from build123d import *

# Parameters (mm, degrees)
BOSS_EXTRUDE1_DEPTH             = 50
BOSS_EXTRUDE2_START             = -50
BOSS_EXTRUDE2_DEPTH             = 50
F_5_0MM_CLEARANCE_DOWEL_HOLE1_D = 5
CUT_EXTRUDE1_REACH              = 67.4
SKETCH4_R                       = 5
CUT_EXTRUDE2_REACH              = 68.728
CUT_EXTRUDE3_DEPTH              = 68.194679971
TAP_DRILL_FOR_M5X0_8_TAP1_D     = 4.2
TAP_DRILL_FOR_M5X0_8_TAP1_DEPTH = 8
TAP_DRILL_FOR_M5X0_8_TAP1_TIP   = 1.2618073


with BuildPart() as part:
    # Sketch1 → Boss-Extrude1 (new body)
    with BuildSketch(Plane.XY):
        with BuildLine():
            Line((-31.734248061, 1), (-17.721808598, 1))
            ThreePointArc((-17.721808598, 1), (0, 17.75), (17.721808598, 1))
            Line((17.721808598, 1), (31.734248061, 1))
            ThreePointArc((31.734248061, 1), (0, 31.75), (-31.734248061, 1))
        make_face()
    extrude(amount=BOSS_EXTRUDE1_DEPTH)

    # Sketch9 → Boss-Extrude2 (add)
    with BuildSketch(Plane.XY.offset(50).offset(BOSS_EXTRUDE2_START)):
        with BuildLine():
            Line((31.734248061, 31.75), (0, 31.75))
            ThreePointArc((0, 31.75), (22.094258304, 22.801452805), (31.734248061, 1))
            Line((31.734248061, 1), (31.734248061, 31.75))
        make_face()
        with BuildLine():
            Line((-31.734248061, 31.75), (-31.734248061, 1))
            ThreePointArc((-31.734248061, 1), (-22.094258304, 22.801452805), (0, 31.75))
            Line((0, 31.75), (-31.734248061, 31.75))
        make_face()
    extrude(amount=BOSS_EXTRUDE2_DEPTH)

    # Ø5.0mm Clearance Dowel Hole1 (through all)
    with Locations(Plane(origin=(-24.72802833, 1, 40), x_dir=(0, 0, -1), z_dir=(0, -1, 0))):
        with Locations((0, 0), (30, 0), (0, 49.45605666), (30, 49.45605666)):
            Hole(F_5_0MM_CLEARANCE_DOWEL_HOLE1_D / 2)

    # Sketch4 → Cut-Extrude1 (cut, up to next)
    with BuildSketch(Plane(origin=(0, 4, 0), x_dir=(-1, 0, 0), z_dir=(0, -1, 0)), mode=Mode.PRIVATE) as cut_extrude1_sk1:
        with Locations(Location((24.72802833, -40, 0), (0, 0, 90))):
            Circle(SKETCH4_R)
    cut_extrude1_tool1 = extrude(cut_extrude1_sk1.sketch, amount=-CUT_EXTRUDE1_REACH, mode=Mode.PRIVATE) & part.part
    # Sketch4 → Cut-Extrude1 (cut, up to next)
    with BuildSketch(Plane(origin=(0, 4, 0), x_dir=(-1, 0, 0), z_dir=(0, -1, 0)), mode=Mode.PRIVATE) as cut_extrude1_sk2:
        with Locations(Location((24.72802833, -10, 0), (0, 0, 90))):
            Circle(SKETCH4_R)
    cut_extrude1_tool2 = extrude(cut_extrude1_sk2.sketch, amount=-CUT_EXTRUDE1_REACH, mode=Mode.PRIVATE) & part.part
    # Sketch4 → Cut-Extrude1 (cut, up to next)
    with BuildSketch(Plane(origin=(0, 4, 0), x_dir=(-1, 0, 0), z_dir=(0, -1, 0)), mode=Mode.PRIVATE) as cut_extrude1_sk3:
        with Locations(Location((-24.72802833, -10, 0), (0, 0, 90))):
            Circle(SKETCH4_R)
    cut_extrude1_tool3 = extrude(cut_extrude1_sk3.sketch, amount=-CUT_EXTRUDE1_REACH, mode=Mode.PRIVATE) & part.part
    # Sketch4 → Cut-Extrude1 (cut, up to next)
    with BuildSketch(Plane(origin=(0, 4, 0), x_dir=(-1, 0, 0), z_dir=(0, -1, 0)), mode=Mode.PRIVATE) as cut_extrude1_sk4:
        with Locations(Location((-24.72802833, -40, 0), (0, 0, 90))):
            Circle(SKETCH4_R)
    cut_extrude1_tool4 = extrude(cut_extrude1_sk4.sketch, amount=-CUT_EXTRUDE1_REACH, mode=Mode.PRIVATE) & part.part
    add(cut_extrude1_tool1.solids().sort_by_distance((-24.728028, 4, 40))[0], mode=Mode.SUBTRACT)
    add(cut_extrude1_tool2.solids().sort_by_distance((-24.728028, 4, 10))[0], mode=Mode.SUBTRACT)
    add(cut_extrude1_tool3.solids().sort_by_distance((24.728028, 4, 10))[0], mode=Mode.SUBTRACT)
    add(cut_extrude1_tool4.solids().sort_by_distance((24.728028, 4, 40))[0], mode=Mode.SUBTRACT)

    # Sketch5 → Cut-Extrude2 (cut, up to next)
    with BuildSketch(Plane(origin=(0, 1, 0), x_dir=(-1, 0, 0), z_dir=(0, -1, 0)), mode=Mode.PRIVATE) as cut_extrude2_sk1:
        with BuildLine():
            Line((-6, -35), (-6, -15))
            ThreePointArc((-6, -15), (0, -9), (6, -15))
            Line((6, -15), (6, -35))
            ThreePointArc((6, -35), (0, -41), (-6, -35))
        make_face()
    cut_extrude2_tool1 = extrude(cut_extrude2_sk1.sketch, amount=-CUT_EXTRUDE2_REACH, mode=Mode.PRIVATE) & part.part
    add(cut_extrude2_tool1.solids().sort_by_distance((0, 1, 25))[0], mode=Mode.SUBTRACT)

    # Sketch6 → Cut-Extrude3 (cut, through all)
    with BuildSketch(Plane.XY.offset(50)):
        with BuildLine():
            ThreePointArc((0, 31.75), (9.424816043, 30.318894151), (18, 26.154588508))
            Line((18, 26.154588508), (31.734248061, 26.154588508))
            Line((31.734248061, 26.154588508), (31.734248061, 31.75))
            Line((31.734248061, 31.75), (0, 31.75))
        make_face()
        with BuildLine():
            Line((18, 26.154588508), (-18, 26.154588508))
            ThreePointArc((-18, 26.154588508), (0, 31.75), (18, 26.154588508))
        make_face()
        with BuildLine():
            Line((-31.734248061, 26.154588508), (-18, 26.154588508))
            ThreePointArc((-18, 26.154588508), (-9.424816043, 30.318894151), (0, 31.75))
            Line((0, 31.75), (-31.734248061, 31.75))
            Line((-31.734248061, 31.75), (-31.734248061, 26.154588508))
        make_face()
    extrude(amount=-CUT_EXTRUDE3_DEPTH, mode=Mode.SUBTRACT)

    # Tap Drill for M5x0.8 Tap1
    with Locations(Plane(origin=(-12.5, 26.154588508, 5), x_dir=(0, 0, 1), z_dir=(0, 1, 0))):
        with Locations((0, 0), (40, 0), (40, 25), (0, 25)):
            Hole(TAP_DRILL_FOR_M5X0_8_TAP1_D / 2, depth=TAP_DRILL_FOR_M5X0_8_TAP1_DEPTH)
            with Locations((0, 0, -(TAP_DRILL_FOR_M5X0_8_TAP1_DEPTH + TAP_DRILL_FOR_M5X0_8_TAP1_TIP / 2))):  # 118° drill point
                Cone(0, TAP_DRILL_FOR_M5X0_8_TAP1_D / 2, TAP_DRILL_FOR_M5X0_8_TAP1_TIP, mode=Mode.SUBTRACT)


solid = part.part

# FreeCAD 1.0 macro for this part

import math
import FreeCAD as App
import Part
import Sketcher
from FreeCAD import Vector
Q = App.Units.Quantity

doc = App.newDocument("Part")
body = doc.addObject("PartDesign::Body", "Body")

# Sketch on XY plane
sketch1 = doc.addObject("Sketcher::SketchObject", "Sketch")
body.addObject(sketch1)
sketch1.AttachmentSupport = (doc.XY_Plane, [""])
sketch1.MapMode = "FlatFace"
sketch1.addGeometry([
    Part.LineSegment(Vector(-32, 1, 0), Vector(-18, 1, 0)),
    Part.ArcOfCircle(Part.Circle(Vector(0, 0, 0), Vector(0, 0, 1), 18), math.radians(3), math.radians(177)),
    Part.LineSegment(Vector(18, 1, 0), Vector(32, 1, 0)),
    Part.ArcOfCircle(Part.Circle(Vector(0, 0, 0), Vector(0, 0, 1), 32), math.radians(2), math.radians(178)),
], False)
sketch1.addConstraint([
    Sketcher.Constraint("Coincident", 0, 2, 1, 2),
    Sketcher.Constraint("Coincident", 1, 1, 2, 1),
    Sketcher.Constraint("Coincident", 2, 2, 3, 1),
    Sketcher.Constraint("Coincident", 3, 2, 0, 1),
    Sketcher.Constraint("Horizontal", 0),
    Sketcher.Constraint("Horizontal", 2),
    Sketcher.Constraint("Coincident", 1, 3, -1, 1),
    Sketcher.Constraint("Coincident", 3, 3, -1, 1),
    Sketcher.Constraint("Horizontal", 0, 2, 1, 1),
    Sketcher.Constraint("Radius", 1, Q("17.75 mm")),
    Sketcher.Constraint("Radius", 3, Q("31.75 mm")),
    Sketcher.Constraint("DistanceY", -1, 1, 0, 2, Q("1 mm")),
])
pad1 = doc.addObject("PartDesign::Pad", "Pad")
body.addObject(pad1)
pad1.Profile = sketch1
pad1.Length = 50

# Sketch on XY plane
sketch2 = doc.addObject("Sketcher::SketchObject", "Sketch001")
body.addObject(sketch2)
sketch2.AttachmentSupport = (doc.XY_Plane, [""])
sketch2.MapMode = "FlatFace"
sketch2.addGeometry([
    Part.LineSegment(Vector(32, 32, 0), Vector(0, 32, 0)),  # 0
    Part.ArcOfCircle(Part.Circle(Vector(0, 0, 0), Vector(0, 0, 1), 32), math.radians(2), math.radians(90)),  # 1
    Part.LineSegment(Vector(32, 1, 0), Vector(32, 32, 0)),  # 2
    Part.LineSegment(Vector(-32, 32, 0), Vector(-32, 1, 0)),  # 3
    Part.ArcOfCircle(Part.Circle(Vector(0, 0, 0), Vector(0, 0, 1), 32), math.radians(90), math.radians(178)),  # 4
    Part.LineSegment(Vector(0, 32, 0), Vector(-32, 32, 0)),  # 5
], False)
sketch2.addConstraint([
    Sketcher.Constraint("Tangent", 0, 2, 1, 2),
    Sketcher.Constraint("Coincident", 1, 1, 2, 1),
    Sketcher.Constraint("Coincident", 2, 2, 0, 1),
    Sketcher.Constraint("Coincident", 3, 2, 4, 2),
    Sketcher.Constraint("Tangent", 4, 1, 5, 1),
    Sketcher.Constraint("Coincident", 5, 2, 3, 1),
    Sketcher.Constraint("Horizontal", 0),
    Sketcher.Constraint("Vertical", 2),
    Sketcher.Constraint("Vertical", 3),
    Sketcher.Constraint("Horizontal", 5),
    Sketcher.Constraint("Coincident", 1, 3, -1, 1),
    Sketcher.Constraint("Coincident", 4, 3, -1, 1),
    Sketcher.Constraint("Equal", 1, 4),
    Sketcher.Constraint("Horizontal", 1, 1, 3, 2),
    Sketcher.Constraint("Radius", 1, Q("31.75 mm")),
    Sketcher.Constraint("DistanceY", -1, 1, 1, 1, Q("1 mm")),
])
pad2 = doc.addObject("PartDesign::Pad", "Pad001")
body.addObject(pad2)
pad2.Profile = sketch2
pad2.Length = 50

# Sketch on XZ plane
sketch3 = doc.addObject("Sketcher::SketchObject", "Sketch002")
body.addObject(sketch3)
sketch3.AttachmentSupport = (doc.XZ_Plane, [""])
sketch3.MapMode = "FlatFace"
sketch3.AttachmentOffset = App.Placement(Vector(0, 0, -1), App.Rotation())
sketch3.addGeometry([
    Part.Circle(Vector(-24.7, 40, 0), Vector(0, 0, 1), 2.5),
    Part.Circle(Vector(-24.7, 10, 0), Vector(0, 0, 1), 2.5),
    Part.Circle(Vector(24.7, 40, 0), Vector(0, 0, 1), 2.5),
    Part.Circle(Vector(24.7, 10, 0), Vector(0, 0, 1), 2.5),
], False)
sketch3.addConstraint([
    Sketcher.Constraint("Equal", 0, 1),
    Sketcher.Constraint("Equal", 1, 2),
    Sketcher.Constraint("Equal", 2, 3),
    Sketcher.Constraint("Symmetric", 0, 3, 2, 3, -2),
    Sketcher.Constraint("Symmetric", 1, 3, 3, 3, -2),
    Sketcher.Constraint("Vertical", 0, 3, 1, 3),
    Sketcher.Constraint("Diameter", 0, Q("5 mm")),
    Sketcher.Constraint("DistanceY", -1, 1, 0, 3, Q("40 mm")),
    Sketcher.Constraint("DistanceY", -1, 1, 1, 3, Q("10 mm")),
    Sketcher.Constraint("DistanceX", 0, 3, -1, 1, Q("24.728028 mm")),
])
doc.recompute()
hole = doc.addObject("PartDesign::Hole", "Hole")
body.addObject(hole)
hole.Profile = sketch3
hole.ThreadType = "None"
hole.Diameter = 5
hole.DepthType = "ThroughAll"

# Sketch on XZ plane
sketch4 = doc.addObject("Sketcher::SketchObject", "Sketch003")
body.addObject(sketch4)
sketch4.AttachmentSupport = (doc.XZ_Plane, [""])
sketch4.MapMode = "FlatFace"
sketch4.AttachmentOffset = App.Placement(Vector(0, 0, -4), App.Rotation())
sketch4.addGeometry(Part.Circle(Vector(-25, 40, 0), Vector(0, 0, 1), 5), False)
sketch4.addConstraint([
    Sketcher.Constraint("Diameter", 0, Q("10 mm")),
    Sketcher.Constraint("DistanceY", -1, 1, 0, 3, Q("40 mm")),
    Sketcher.Constraint("DistanceX", 0, 3, -1, 1, Q("24.728028 mm")),
])
pocket1 = doc.addObject("PartDesign::Pocket", "Pocket")
body.addObject(pocket1)
pocket1.Profile = sketch4
pocket1.Length = 27.75

# Sketch on XZ plane
sketch5 = doc.addObject("Sketcher::SketchObject", "Sketch004")
body.addObject(sketch5)
sketch5.AttachmentSupport = (doc.XZ_Plane, [""])
sketch5.MapMode = "FlatFace"
sketch5.AttachmentOffset = App.Placement(Vector(0, 0, -4), App.Rotation())
sketch5.addGeometry(Part.Circle(Vector(-25, 10, 0), Vector(0, 0, 1), 5), False)
sketch5.addConstraint([
    Sketcher.Constraint("Diameter", 0, Q("10 mm")),
    Sketcher.Constraint("DistanceY", -1, 1, 0, 3, Q("10 mm")),
    Sketcher.Constraint("DistanceX", 0, 3, -1, 1, Q("24.728028 mm")),
])
pocket2 = doc.addObject("PartDesign::Pocket", "Pocket001")
body.addObject(pocket2)
pocket2.Profile = sketch5
pocket2.Length = 27.75

# Sketch on XZ plane
sketch6 = doc.addObject("Sketcher::SketchObject", "Sketch005")
body.addObject(sketch6)
sketch6.AttachmentSupport = (doc.XZ_Plane, [""])
sketch6.MapMode = "FlatFace"
sketch6.AttachmentOffset = App.Placement(Vector(0, 0, -4), App.Rotation())
sketch6.addGeometry(Part.Circle(Vector(25, 10, 0), Vector(0, 0, 1), 5), False)
sketch6.addConstraint([
    Sketcher.Constraint("Diameter", 0, Q("10 mm")),
    Sketcher.Constraint("DistanceY", -1, 1, 0, 3, Q("10 mm")),
    Sketcher.Constraint("DistanceX", -1, 1, 0, 3, Q("24.728028 mm")),
])
pocket3 = doc.addObject("PartDesign::Pocket", "Pocket002")
body.addObject(pocket3)
pocket3.Profile = sketch6
pocket3.Length = 27.75

# Sketch on XZ plane
sketch7 = doc.addObject("Sketcher::SketchObject", "Sketch006")
body.addObject(sketch7)
sketch7.AttachmentSupport = (doc.XZ_Plane, [""])
sketch7.MapMode = "FlatFace"
sketch7.AttachmentOffset = App.Placement(Vector(0, 0, -4), App.Rotation())
sketch7.addGeometry(Part.Circle(Vector(25, 40, 0), Vector(0, 0, 1), 5), False)
sketch7.addConstraint([
    Sketcher.Constraint("Diameter", 0, Q("10 mm")),
    Sketcher.Constraint("DistanceY", -1, 1, 0, 3, Q("40 mm")),
    Sketcher.Constraint("DistanceX", -1, 1, 0, 3, Q("24.728028 mm")),
])
pocket4 = doc.addObject("PartDesign::Pocket", "Pocket003")
body.addObject(pocket4)
pocket4.Profile = sketch7
pocket4.Length = 27.75

# Sketch on XZ plane
sketch8 = doc.addObject("Sketcher::SketchObject", "Sketch007")
body.addObject(sketch8)
sketch8.AttachmentSupport = (doc.XZ_Plane, [""])
sketch8.MapMode = "FlatFace"
sketch8.AttachmentOffset = App.Placement(Vector(0, 0, -1), App.Rotation())
sketch8.addGeometry([
    Part.LineSegment(Vector(6, 15, 0), Vector(6, 35, 0)),
    Part.ArcOfCircle(Part.Circle(Vector(0, 35, 0), Vector(0, 0, 1), 6), math.radians(0), math.radians(180)),
    Part.LineSegment(Vector(-6, 35, 0), Vector(-6, 15, 0)),
    Part.ArcOfCircle(Part.Circle(Vector(0, 15, 0), Vector(0, 0, 1), 6), math.radians(180), math.radians(360)),
], False)
sketch8.addConstraint([
    Sketcher.Constraint("Tangent", 0, 2, 1, 1),
    Sketcher.Constraint("Tangent", 1, 2, 2, 1),
    Sketcher.Constraint("Tangent", 2, 2, 3, 1),
    Sketcher.Constraint("Tangent", 3, 2, 0, 1),
    Sketcher.Constraint("Vertical", 0),
    Sketcher.Constraint("Vertical", 2),
    Sketcher.Constraint("PointOnObject", 1, 3, -2),
    Sketcher.Constraint("Radius", 1, Q("6 mm")),
    Sketcher.Constraint("DistanceY", 0, 1, 0, 2, Q("20 mm")),
    Sketcher.Constraint("DistanceY", -1, 1, 1, 3, Q("35 mm")),
])
pocket5 = doc.addObject("PartDesign::Pocket", "Pocket004")
body.addObject(pocket5)
pocket5.Profile = sketch8
pocket5.Length = 30.75

# Sketch on XY plane
sketch9 = doc.addObject("Sketcher::SketchObject", "Sketch008")
body.addObject(sketch9)
sketch9.AttachmentSupport = (doc.XY_Plane, [""])
sketch9.MapMode = "FlatFace"
sketch9.AttachmentOffset = App.Placement(Vector(0, 0, 50), App.Rotation())
sketch9.addGeometry([
    Part.LineSegment(Vector(32, 26, 0), Vector(32, 32, 0)),
    Part.LineSegment(Vector(32, 32, 0), Vector(-32, 32, 0)),
    Part.LineSegment(Vector(-32, 32, 0), Vector(-32, 26, 0)),
    Part.LineSegment(Vector(-32, 26, 0), Vector(32, 26, 0)),
], False)
sketch9.addConstraint([
    Sketcher.Constraint("Coincident", 0, 2, 1, 1),
    Sketcher.Constraint("Coincident", 1, 2, 2, 1),
    Sketcher.Constraint("Coincident", 2, 2, 3, 1),
    Sketcher.Constraint("Coincident", 3, 2, 0, 1),
    Sketcher.Constraint("Vertical", 0),
    Sketcher.Constraint("Horizontal", 1),
    Sketcher.Constraint("Vertical", 2),
    Sketcher.Constraint("Horizontal", 3),
    Sketcher.Constraint("DistanceY", -1, 1, 0, 2, Q("31.75 mm")),
    Sketcher.Constraint("DistanceY", 0, 1, 0, 2, Q("5.595411 mm")),
    Sketcher.Constraint("DistanceX", 1, 2, 1, 1, Q("63.468496 mm")),
    Sketcher.Constraint("DistanceX", -1, 1, 0, 2, Q("31.734248 mm")),
])
pocket6 = doc.addObject("PartDesign::Pocket", "Pocket005")
body.addObject(pocket6)
pocket6.Profile = sketch9
pocket6.Type = "ThroughAll"

# Sketch on XZ plane
sketch10 = doc.addObject("Sketcher::SketchObject", "Sketch009")
body.addObject(sketch10)
sketch10.AttachmentSupport = (doc.XZ_Plane, [""])
sketch10.MapMode = "FlatFace"
sketch10.AttachmentOffset = App.Placement(Vector(0, 0, -26.154589), App.Rotation())
sketch10.addGeometry([
    Part.Circle(Vector(-12.5, 5, 0), Vector(0, 0, 1), 2.1),
    Part.Circle(Vector(-12.5, 45, 0), Vector(0, 0, 1), 2.1),
    Part.Circle(Vector(12.5, 45, 0), Vector(0, 0, 1), 2.1),
    Part.Circle(Vector(12.5, 5, 0), Vector(0, 0, 1), 2.1),
], False)
sketch10.addConstraint([
    Sketcher.Constraint("Equal", 0, 1),
    Sketcher.Constraint("Equal", 1, 2),
    Sketcher.Constraint("Equal", 2, 3),
    Sketcher.Constraint("Symmetric", 1, 3, 2, 3, -2),
    Sketcher.Constraint("Symmetric", 0, 3, 3, 3, -2),
    Sketcher.Constraint("Vertical", 0, 3, 1, 3),
    Sketcher.Constraint("Diameter", 0, Q("4.2 mm")),
    Sketcher.Constraint("DistanceY", -1, 1, 0, 3, Q("5 mm")),
    Sketcher.Constraint("DistanceY", -1, 1, 1, 3, Q("45 mm")),
    Sketcher.Constraint("DistanceX", 1, 3, 2, 3, Q("25 mm")),
])
doc.recompute()
hole2 = doc.addObject("PartDesign::Hole", "Hole001")
body.addObject(hole2)
hole2.Profile = sketch10
hole2.ThreadType = "None"
hole2.Diameter = 4.2
hole2.DepthType = "Dimension"
hole2.Depth = 8
hole2.DrillPoint = "Angled"
hole2.DrillPointAngle = 118
hole2.Reversed = True

doc.recompute()
